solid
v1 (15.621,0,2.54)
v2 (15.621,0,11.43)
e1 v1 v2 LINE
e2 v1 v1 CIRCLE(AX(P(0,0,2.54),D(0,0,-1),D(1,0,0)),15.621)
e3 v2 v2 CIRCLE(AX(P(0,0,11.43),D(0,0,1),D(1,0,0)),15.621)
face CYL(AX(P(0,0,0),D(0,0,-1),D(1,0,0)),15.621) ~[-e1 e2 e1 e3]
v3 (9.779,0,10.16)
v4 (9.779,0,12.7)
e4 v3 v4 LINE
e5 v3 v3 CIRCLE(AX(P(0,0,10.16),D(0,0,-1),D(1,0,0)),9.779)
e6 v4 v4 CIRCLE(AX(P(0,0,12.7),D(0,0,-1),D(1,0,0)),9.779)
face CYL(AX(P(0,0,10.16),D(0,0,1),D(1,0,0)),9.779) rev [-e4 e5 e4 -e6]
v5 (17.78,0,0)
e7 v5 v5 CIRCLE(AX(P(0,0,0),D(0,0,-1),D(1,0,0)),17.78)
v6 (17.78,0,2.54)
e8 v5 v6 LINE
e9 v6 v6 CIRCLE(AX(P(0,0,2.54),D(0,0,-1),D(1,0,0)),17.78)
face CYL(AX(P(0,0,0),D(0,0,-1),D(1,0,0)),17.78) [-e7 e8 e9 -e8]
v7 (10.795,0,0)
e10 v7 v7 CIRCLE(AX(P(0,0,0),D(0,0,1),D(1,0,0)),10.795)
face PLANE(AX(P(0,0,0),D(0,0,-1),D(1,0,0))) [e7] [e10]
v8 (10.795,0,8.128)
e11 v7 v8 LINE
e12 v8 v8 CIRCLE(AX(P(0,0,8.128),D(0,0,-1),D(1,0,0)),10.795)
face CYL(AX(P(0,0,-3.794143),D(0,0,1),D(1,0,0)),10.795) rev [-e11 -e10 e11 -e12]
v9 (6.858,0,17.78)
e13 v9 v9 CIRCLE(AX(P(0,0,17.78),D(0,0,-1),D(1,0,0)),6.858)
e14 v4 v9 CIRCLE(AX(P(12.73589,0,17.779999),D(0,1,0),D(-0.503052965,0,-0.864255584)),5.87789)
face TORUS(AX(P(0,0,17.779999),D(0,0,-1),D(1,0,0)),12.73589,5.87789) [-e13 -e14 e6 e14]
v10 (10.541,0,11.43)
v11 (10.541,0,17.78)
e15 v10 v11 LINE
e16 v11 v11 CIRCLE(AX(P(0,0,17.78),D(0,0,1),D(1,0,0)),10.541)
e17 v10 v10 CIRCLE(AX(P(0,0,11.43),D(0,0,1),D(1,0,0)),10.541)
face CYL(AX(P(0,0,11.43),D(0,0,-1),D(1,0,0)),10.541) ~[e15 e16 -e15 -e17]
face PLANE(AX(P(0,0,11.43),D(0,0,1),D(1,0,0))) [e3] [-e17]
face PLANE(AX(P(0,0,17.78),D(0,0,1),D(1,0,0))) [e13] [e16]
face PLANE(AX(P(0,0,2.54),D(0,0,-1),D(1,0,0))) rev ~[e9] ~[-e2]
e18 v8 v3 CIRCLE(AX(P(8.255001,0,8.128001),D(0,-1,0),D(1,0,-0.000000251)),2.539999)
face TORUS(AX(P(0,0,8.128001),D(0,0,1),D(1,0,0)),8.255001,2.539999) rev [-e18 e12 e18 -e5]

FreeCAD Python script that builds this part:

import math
import FreeCAD as App
import Part
import Sketcher
Q = App.Units.Quantity

doc = App.newDocument("Part")
body = doc.addObject("PartDesign::Body", "Body")

sketch1 = body.newObject("Sketcher::SketchObject", "Sketch")
sketch1.AttachmentSupport = (doc.getObject("XY_Plane"), [""])
sketch1.MapMode = "FlatFace"
sketch1.addGeometry(Part.Circle(App.Vector(0, 0, 0), App.Vector(0, 0, 1), 16), False)
sketch1.addConstraint(Sketcher.Constraint("Coincident", 0, 3, -1, 1))
sketch1.addConstraint(Sketcher.Constraint("Diameter", 0, Q("1.23 in")))
pad1 = body.newObject("PartDesign::Pad", "Pad")
pad1.Profile = sketch1
pad1.Length = Q("0.45 in")

sketch2 = body.newObject("Sketcher::SketchObject", "Sketch001")
sketch2.AttachmentSupport = (doc.getObject("XY_Plane"), [""])
sketch2.MapMode = "FlatFace"
sketch2.AttachmentOffset = App.Placement(App.Vector(0, 0, 0.45 * 25.4), App.Rotation())
sketch2.addGeometry(Part.Circle(App.Vector(0, 0, 0), App.Vector(0, 0, 1), 11), False)
sketch2.addConstraint(Sketcher.Constraint("Coincident", 0, 3, -1, 1))
sketch2.addConstraint(Sketcher.Constraint("Diameter", 0, Q("0.83 in")))
pad2 = body.newObject("PartDesign::Pad", "Pad001")
pad2.Profile = sketch2
pad2.Length = Q("0.25 in")

sketch3 = body.newObject("Sketcher::SketchObject", "Sketch002")
sketch3.AttachmentSupport = (doc.getObject("XY_Plane"), [""])
sketch3.MapMode = "FlatFace"
sketch3.addGeometry(Part.Circle(App.Vector(0, 0, 0), App.Vector(0, 0, 1), 18), False)
sketch3.addConstraint(Sketcher.Constraint("Coincident", 0, 3, -1, 1))
sketch3.addConstraint(Sketcher.Constraint("Diameter", 0, Q("1.4 in")))
pad3 = body.newObject("PartDesign::Pad", "Pad002")
pad3.Profile = sketch3
pad3.Length = Q("0.1 in")

sketch4 = body.newObject("Sketcher::SketchObject", "Sketch003")
sketch4.AttachmentSupport = (doc.getObject("XY_Plane"), [""])
sketch4.MapMode = "FlatFace"
sketch4.AttachmentOffset = App.Placement(App.Vector(0, 0, 0.7 * 25.4), App.Rotation())
sketch4.addGeometry(Part.Circle(App.Vector(0, 0, 0), App.Vector(0, 0, 1), 7), False)
sketch4.addConstraint(Sketcher.Constraint("Coincident", 0, 3, -1, 1))
sketch4.addConstraint(Sketcher.Constraint("Diameter", 0, Q("0.525 in")))
pocket1 = body.newObject("PartDesign::Pocket", "Pocket")
pocket1.Profile = sketch4
pocket1.Type = "ThroughAll"

sketch5 = body.newObject("Sketcher::SketchObject", "Sketch004")
sketch5.AttachmentSupport = (doc.getObject("XZ_Plane"), [""])
sketch5.MapMode = "FlatFace"
sketch5.addGeometry(Part.ArcOfCircle(Part.Circle(App.Vector(12.7, 17.8, 0), App.Vector(0, 0, 1), 5.9), math.radians(180), math.radians(240)), False)
sketch5.addGeometry(Part.LineSegment(App.Vector(6.9, 17.8, 0), App.Vector(1, 17.8, 0)), False)
sketch5.addGeometry(Part.LineSegment(App.Vector(1, 17.8, 0), App.Vector(1, -3.8, 0)), False)
sketch5.addGeometry(Part.LineSegment(App.Vector(1, -3.8, 0), App.Vector(10.8, -3.8, 0)), False)
sketch5.addGeometry(Part.LineSegment(App.Vector(10.8, -3.8, 0), App.Vector(10.8, 8.1, 0)), False)
sketch5.addGeometry(Part.ArcOfCircle(Part.Circle(App.Vector(8.3, 8.1, 0), App.Vector(0, 0, 1), 2.5), math.radians(0), math.radians(53)), False)
sketch5.addGeometry(Part.LineSegment(App.Vector(9.8, 10.2, 0), App.Vector(9.8, 12.7, 0)), False)
sketch5.addConstraint(Sketcher.Constraint("Coincident", 0, 1, 1, 1))
sketch5.addConstraint(Sketcher.Constraint("Coincident", 1, 2, 2, 1))
sketch5.addConstraint(Sketcher.Constraint("Coincident", 2, 2, 3, 1))
sketch5.addConstraint(Sketcher.Constraint("Coincident", 3, 2, 4, 1))
sketch5.addConstraint(Sketcher.Constraint("Tangent", 4, 2, 5, 1))
sketch5.addConstraint(Sketcher.Constraint("Coincident", 5, 2, 6, 1))
sketch5.addConstraint(Sketcher.Constraint("Coincident", 6, 2, 0, 2))
sketch5.addConstraint(Sketcher.Constraint("Horizontal", 1))
sketch5.addConstraint(Sketcher.Constraint("Vertical", 2))
sketch5.addConstraint(Sketcher.Constraint("Horizontal", 3))
sketch5.addConstraint(Sketcher.Constraint("Vertical", 4))
sketch5.addConstraint(Sketcher.Constraint("Vertical", 6))
sketch5.addConstraint(Sketcher.Constraint("Radius", 5, Q("0.0999999 in")))
sketch5.addConstraint(Sketcher.Constraint("DistanceY", 6, 1, 6, 2, Q("0.1 in")))
sketch5.addConstraint(Sketcher.Constraint("DistanceY", -1, 1, 0, 3, Q("0.7 in")))
sketch5.addConstraint(Sketcher.Constraint("DistanceY", -1, 1, 0, 1, Q("0.7 in")))
sketch5.addConstraint(Sketcher.Constraint("DistanceY", -1, 1, 5, 2, Q("0.4 in")))
sketch5.addConstraint(Sketcher.Constraint("DistanceY", -1, 1, 5, 3, Q("0.32 in")))
sketch5.addConstraint(Sketcher.Constraint("DistanceX", -1, 1, 0, 1, Q("0.27 in")))
sketch5.addConstraint(Sketcher.Constraint("DistanceX", -1, 1, 5, 3, Q("0.3250001 in")))
sketch5.addConstraint(Sketcher.Constraint("DistanceX", 1, 2, 1, 1, Q("5.816708 mm")))
sketch5.addConstraint(Sketcher.Constraint("DistanceY", 2, 2, 2, 1, Q("21.574143 mm")))
groove = body.newObject("PartDesign::Groove", "Groove")
groove.Profile = sketch5
groove.ReferenceAxis = (sketch5, ["V_Axis"])
groove.Angle = 360

doc.recompute()
